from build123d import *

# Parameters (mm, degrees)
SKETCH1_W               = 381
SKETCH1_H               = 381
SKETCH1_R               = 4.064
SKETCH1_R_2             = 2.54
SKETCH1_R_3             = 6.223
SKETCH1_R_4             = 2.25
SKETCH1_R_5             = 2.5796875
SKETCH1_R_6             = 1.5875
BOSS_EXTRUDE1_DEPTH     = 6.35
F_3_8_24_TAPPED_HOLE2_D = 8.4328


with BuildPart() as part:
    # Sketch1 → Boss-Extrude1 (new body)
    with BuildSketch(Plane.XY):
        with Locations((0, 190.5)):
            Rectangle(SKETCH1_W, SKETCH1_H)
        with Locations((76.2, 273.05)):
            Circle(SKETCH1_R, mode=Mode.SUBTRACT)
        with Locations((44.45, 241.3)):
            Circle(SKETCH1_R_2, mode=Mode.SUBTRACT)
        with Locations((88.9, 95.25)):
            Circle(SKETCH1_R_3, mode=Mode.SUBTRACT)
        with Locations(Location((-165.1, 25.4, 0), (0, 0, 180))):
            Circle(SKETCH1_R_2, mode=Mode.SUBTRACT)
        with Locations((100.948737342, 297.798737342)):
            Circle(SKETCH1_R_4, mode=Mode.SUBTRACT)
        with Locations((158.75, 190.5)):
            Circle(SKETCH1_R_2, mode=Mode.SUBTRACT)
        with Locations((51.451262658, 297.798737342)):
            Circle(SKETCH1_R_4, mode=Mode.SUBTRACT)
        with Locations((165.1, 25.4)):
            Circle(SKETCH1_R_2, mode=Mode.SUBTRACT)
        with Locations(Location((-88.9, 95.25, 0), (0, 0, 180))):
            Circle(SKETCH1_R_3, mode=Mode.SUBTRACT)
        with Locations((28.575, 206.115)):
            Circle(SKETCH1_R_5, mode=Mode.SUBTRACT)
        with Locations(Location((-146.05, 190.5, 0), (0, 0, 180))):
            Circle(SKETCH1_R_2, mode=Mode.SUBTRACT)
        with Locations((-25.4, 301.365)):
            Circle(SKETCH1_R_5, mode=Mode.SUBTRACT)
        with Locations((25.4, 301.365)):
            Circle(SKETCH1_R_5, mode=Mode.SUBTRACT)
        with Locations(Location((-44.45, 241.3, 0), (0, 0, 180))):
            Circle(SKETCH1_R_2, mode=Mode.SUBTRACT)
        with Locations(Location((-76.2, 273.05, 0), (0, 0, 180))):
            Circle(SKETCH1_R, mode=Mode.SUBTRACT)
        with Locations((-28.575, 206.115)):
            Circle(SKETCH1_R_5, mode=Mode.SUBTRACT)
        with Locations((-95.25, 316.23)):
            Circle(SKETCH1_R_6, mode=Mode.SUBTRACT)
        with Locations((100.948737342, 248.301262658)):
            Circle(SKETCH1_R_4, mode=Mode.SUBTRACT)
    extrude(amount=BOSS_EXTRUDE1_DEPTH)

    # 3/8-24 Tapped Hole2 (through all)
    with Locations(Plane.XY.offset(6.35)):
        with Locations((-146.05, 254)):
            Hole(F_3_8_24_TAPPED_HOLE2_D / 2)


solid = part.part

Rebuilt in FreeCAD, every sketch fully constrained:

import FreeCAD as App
import Part
import Sketcher
from FreeCAD import Vector
Q = App.Units.Quantity

doc = App.newDocument("Part")
body = doc.addObject("PartDesign::Body", "Body")

# Sketch on XY plane
sketch1 = doc.addObject("Sketcher::SketchObject", "Sketch")
body.addObject(sketch1)
sketch1.AttachmentSupport = (doc.XY_Plane, [""])
sketch1.MapMode = "FlatFace"
sketch1.addGeometry(Part.LineSegment(Vector(-190.5, 381, 0), Vector(-190.5, 0, 0)), False)
sketch1.addGeometry(Part.LineSegment(Vector(-190.5, 0, 0), Vector(190.5, 0, 0)), False)
sketch1.addGeometry(Part.LineSegment(Vector(190.5, 0, 0), Vector(190.5, 381, 0)), False)
sketch1.addGeometry(Part.LineSegment(Vector(190.5, 381, 0), Vector(-190.5, 381, 0)), False)
sketch1.addGeometry(Part.Circle(Vector(-165.1, 25.4, 0), Vector(0, 0, 1), 2.5), False)
sketch1.addGeometry(Part.Circle(Vector(-88.9, 95.2, 0), Vector(0, 0, 1), 6.2), False)
sketch1.addGeometry(Part.Circle(Vector(165.1, 25.4, 0), Vector(0, 0, 1), 2.5), False)
sketch1.addGeometry(Part.Circle(Vector(88.9, 95.2, 0), Vector(0, 0, 1), 6.2), False)
sketch1.addGeometry(Part.Circle(Vector(-146.1, 190.5, 0), Vector(0, 0, 1), 2.5), False)
sketch1.addGeometry(Part.Circle(Vector(-28.6, 206.1, 0), Vector(0, 0, 1), 2.6), False)
sketch1.addGeometry(Part.Circle(Vector(-44.5, 241.3, 0), Vector(0, 0, 1), 2.5), False)
sketch1.addGeometry(Part.Circle(Vector(-95.2, 316.2, 0), Vector(0, 0, 1), 1.6), False)
sketch1.addGeometry(Part.Circle(Vector(-76.2, 273.1, 0), Vector(0, 0, 1), 4.1), False)
sketch1.addGeometry(Part.Circle(Vector(-25.4, 301.4, 0), Vector(0, 0, 1), 2.6), False)
sketch1.addGeometry(Part.Circle(Vector(28.6, 206.1, 0), Vector(0, 0, 1), 2.6), False)
sketch1.addGeometry(Part.Circle(Vector(44.5, 241.3, 0), Vector(0, 0, 1), 2.5), False)
sketch1.addGeometry(Part.Circle(Vector(158.8, 190.5, 0), Vector(0, 0, 1), 2.5), False)
sketch1.addGeometry(Part.Circle(Vector(76.2, 273.1, 0), Vector(0, 0, 1), 4.1), False)
sketch1.addGeometry(Part.Circle(Vector(25.4, 301.4, 0), Vector(0, 0, 1), 2.6), False)
sketch1.addGeometry(Part.Circle(Vector(51.5, 297.8, 0), Vector(0, 0, 1), 2.2), False)
sketch1.addGeometry(Part.Circle(Vector(100.9, 248.3, 0), Vector(0, 0, 1), 2.2), False)
sketch1.addGeometry(Part.Circle(Vector(100.9, 297.8, 0), Vector(0, 0, 1), 2.2), False)
sketch1.addConstraint(Sketcher.Constraint("Coincident", 0, 2, 1, 1))
sketch1.addConstraint(Sketcher.Constraint("Coincident", 1, 2, 2, 1))
sketch1.addConstraint(Sketcher.Constraint("Coincident", 2, 2, 3, 1))
sketch1.addConstraint(Sketcher.Constraint("Coincident", 3, 2, 0, 1))
sketch1.addConstraint(Sketcher.Constraint("Vertical", 0))
sketch1.addConstraint(Sketcher.Constraint("Horizontal", 1))
sketch1.addConstraint(Sketcher.Constraint("Vertical", 2))
sketch1.addConstraint(Sketcher.Constraint("Horizontal", 3))
sketch1.addConstraint(Sketcher.Constraint("Equal", 4, 6))
sketch1.addConstraint(Sketcher.Constraint("Equal", 5, 7))
sketch1.addConstraint(Sketcher.Constraint("Equal", 6, 8))
sketch1.addConstraint(Sketcher.Constraint("Equal", 8, 10))
sketch1.addConstraint(Sketcher.Constraint("Equal", 9, 13))
sketch1.addConstraint(Sketcher.Constraint("Equal", 13, 14))
sketch1.addConstraint(Sketcher.Constraint("Equal", 10, 15))
sketch1.addConstraint(Sketcher.Constraint("Equal", 15, 16))
sketch1.addConstraint(Sketcher.Constraint("Equal", 12, 17))
sketch1.addConstraint(Sketcher.Constraint("Equal", 14, 18))
sketch1.addConstraint(Sketcher.Constraint("Equal", 19, 20))
sketch1.addConstraint(Sketcher.Constraint("Equal", 20, 21))
sketch1.addConstraint(Sketcher.Constraint("Symmetric", 0, 2, 1, 2, -1, 1))
sketch1.addConstraint(Sketcher.Constraint("Symmetric", 4, 3, 6, 3, -2))
sketch1.addConstraint(Sketcher.Constraint("Symmetric", 5, 3, 7, 3, -2))
sketch1.addConstraint(Sketcher.Constraint("Symmetric", 9, 3, 14, 3, -2))
sketch1.addConstraint(Sketcher.Constraint("Symmetric", 10, 3, 15, 3, -2))
sketch1.addConstraint(Sketcher.Constraint("Symmetric", 12, 3, 17, 3, -2))
sketch1.addConstraint(Sketcher.Constraint("Symmetric", 13, 3, 18, 3, -2))
sketch1.addConstraint(Sketcher.Constraint("Horizontal", 8, 3, 16, 3))
sketch1.addConstraint(Sketcher.Constraint("Horizontal", 19, 3, 21, 3))
sketch1.addConstraint(Sketcher.Constraint("Vertical", 20, 3, 21, 3))
sketch1.addConstraint(Sketcher.Constraint("Equal", 3, 0))
sketch1.addConstraint(Sketcher.Constraint("Diameter", 4, Q("0.2 in")))
sketch1.addConstraint(Sketcher.Constraint("Diameter", 5, Q("0.49 in")))
sketch1.addConstraint(Sketcher.Constraint("Diameter", 12, Q("0.32 in")))
sketch1.addConstraint(Sketcher.Constraint("DistanceX", 1, 1, 1, 2, Q("15 in")))
sketch1.addConstraint(Sketcher.Constraint("Diameter", 9, Q("0.203125 in")))
sketch1.addConstraint(Sketcher.Constraint("Diameter", 11, Q("0.125 in")))
sketch1.addConstraint(Sketcher.Constraint("DistanceY", -1, 1, 4, 3, Q("1 in")))
sketch1.addConstraint(Sketcher.Constraint("DistanceX", 12, 3, -1, 1, Q("3 in")))
sketch1.addConstraint(Sketcher.Constraint("DistanceX", 13, 3, -1, 1, Q("1 in")))
sketch1.addConstraint(Sketcher.Constraint("DistanceX", 4, 3, 5, 3, Q("3 in")))
sketch1.addConstraint(Sketcher.Constraint("DistanceX", 5, 3, 6, 3, Q("10 in")))
sketch1.addConstraint(Sketcher.Constraint("DistanceX", 8, 3, 10, 3, Q("4 in")))
sketch1.addConstraint(Sketcher.Constraint("DistanceY", 8, 3, 10, 3, Q("2 in")))
sketch1.addConstraint(Sketcher.Constraint("DistanceX", 11, 3, 10, 3, Q("2 in")))
sketch1.addConstraint(Sketcher.Constraint("DistanceY", 5, 3, 12, 3, Q("7 in")))
sketch1.addConstraint(Sketcher.Constraint("DistanceY", -1, 1, 8, 3, Q("7.5 in")))
sketch1.addConstraint(Sketcher.Constraint("DistanceY", 5, 3, 11, 3, Q("8.7 in")))
sketch1.addConstraint(Sketcher.Constraint("DistanceX", 10, 3, 15, 3, Q("3.5 in")))
sketch1.addConstraint(Sketcher.Constraint("DistanceX", 15, 3, 16, 3, Q("4.5 in")))
sketch1.addConstraint(Sketcher.Constraint("Diameter", 19, 4.5))
sketch1.addConstraint(Sketcher.Constraint("DistanceY", -1, 1, 5, 3, Q("3.75 in")))
sketch1.addConstraint(Sketcher.Constraint("DistanceY", 9, 3, 13, 3, Q("3.75 in")))
sketch1.addConstraint(Sketcher.Constraint("DistanceX", 9, 3, 14, 3, Q("2.25 in")))
sketch1.addConstraint(Sketcher.Constraint("DistanceY", -1, 1, 9, 3, 206.115))
sketch1.addConstraint(Sketcher.Constraint("DistanceX", -1, 1, 19, 3, 51.451263))
sketch1.addConstraint(Sketcher.Constraint("DistanceY", -1, 1, 19, 3, 297.798737))
sketch1.addConstraint(Sketcher.Constraint("DistanceX", -1, 1, 20, 3, 100.948737))
sketch1.addConstraint(Sketcher.Constraint("DistanceY", -1, 1, 20, 3, 248.301263))
pad1 = doc.addObject("PartDesign::Pad", "Pad")
body.addObject(pad1)
pad1.Profile = sketch1
pad1.Length = Q("0.25 in")

# Sketch on XY plane
sketch2 = doc.addObject("Sketcher::SketchObject", "Sketch001")
body.addObject(sketch2)
sketch2.AttachmentSupport = (doc.XY_Plane, [""])
sketch2.MapMode = "FlatFace"
sketch2.AttachmentOffset = App.Placement(Vector(0, 0, 0.25 * 25.4), App.Rotation())
sketch2.addGeometry(Part.Circle(Vector(-146.1, 254, 0), Vector(0, 0, 1), 4.2), False)
sketch2.addConstraint(Sketcher.Constraint("Diameter", 0, Q("0.332 in")))
sketch2.addConstraint(Sketcher.Constraint("DistanceY", -1, 1, 0, 3, Q("10 in")))
sketch2.addConstraint(Sketcher.Constraint("DistanceX", 0, 3, -1, 1, Q("5.75 in")))
doc.recompute()
hole = doc.addObject("PartDesign::Hole", "Hole")
body.addObject(hole)
hole.Profile = sketch2
hole.ThreadType = "None"
hole.Diameter = Q("0.332 in")
hole.DepthType = "ThroughAll"

doc.recompute()
